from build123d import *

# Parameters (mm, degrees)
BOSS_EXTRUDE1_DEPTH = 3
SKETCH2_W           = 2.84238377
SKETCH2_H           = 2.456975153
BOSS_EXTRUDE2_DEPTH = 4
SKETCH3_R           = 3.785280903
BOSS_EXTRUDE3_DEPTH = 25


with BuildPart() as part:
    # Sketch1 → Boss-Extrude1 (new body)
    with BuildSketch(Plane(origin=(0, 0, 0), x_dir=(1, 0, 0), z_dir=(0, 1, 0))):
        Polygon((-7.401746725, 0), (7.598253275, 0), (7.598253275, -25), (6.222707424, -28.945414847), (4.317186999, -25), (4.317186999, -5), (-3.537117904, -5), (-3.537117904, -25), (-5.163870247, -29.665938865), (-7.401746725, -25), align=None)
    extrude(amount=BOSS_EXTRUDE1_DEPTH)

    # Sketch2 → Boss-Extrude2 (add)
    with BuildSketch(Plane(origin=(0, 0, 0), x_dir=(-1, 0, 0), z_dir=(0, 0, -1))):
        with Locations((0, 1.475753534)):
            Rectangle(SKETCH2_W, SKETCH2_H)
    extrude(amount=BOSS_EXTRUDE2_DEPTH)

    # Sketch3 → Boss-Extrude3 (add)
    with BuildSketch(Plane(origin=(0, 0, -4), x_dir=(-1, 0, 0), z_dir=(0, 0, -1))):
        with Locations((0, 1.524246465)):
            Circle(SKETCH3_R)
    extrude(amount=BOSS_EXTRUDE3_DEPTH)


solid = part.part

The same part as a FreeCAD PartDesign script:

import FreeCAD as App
import Part
import Sketcher

V = App.Vector


def add_polygon(sketch, points):
    """Adds a closed chain of lines whose ends are joined by coincident constraints."""
    first, n = sketch.GeometryCount, len(points)
    for a, b in zip(points, points[1:] + points[:1]):
        sketch.addGeometry(Part.LineSegment(App.Vector(*a, 0), App.Vector(*b, 0)), False)
    for i in range(n):
        sketch.addConstraint(Sketcher.Constraint("Coincident", first + i, 2, first + (i + 1) % n, 1))

doc = App.newDocument("Part")
params = doc.addObject("Spreadsheet::Sheet", "Params")
for row, (alias, value) in enumerate([
    ("sketch1_width", "15 mm"),
    ("sketch1_height", "25 mm"),
    ("sketch1_height2", "20 mm"),
    ("pad1_length", "3 mm"),
    ("pad2_length", "4 mm"),
    ("pad3_length", "25 mm"),
], start=1):
    params.set(f"A{row}", alias)
    params.set(f"B{row}", "=" + value)
    params.setAlias(f"B{row}", alias)

body = doc.addObject("PartDesign::Body", "Body")

sketch1 = body.newObject("Sketcher::SketchObject", "Sketch")
sketch1.AttachmentSupport = (doc.getObject("XZ_Plane"), [""])
sketch1.MapMode = "FlatFace"
add_polygon(sketch1, [(7.6, 0), (-7.4, 0), (-7.4, 25), (-5.2, 29.7), (-3.5, 25), (-3.5, 5), (4.3, 5), (4.3, 25), (6.2, 28.9), (7.6, 25)])
sketch1.addConstraint([
    Sketcher.Constraint("Horizontal", 0),
    Sketcher.Constraint("Vertical", 1),
    Sketcher.Constraint("Vertical", 4),
    Sketcher.Constraint("Horizontal", 5),
    Sketcher.Constraint("Vertical", 6),
    Sketcher.Constraint("Vertical", 9),
    Sketcher.Constraint("PointOnObject", 0, 2, -1),
    Sketcher.Constraint("Parallel", 3, 8),
    Sketcher.Constraint("Horizontal", 1, 2, 3, 2),
    Sketcher.Constraint("Horizontal", 3, 2, 6, 2),
    Sketcher.Constraint("Horizontal", 6, 2, 8, 2),
    Sketcher.Constraint("DistanceX", 0, 2, 0, 1, 15.0),
    Sketcher.Constraint("DistanceY", 1, 1, 1, 2, 25.0),
    Sketcher.Constraint("DistanceY", 4, 2, 4, 1, 20.0),
    Sketcher.Constraint("Distance", 2, 5.17485),
    Sketcher.Constraint("DistanceX", 5, 1, 5, 2, 7.854305),
    Sketcher.Constraint("DistanceX", 2, 2, -1, 1, 5.16387),
    Sketcher.Constraint("DistanceY", -1, 1, 2, 2, 29.665939),
    Sketcher.Constraint("DistanceX", 1, 2, 3, 2, 3.864629),
    Sketcher.Constraint("DistanceX", 6, 2, 7, 2, 1.90552),
])
sketch1.setExpression("Constraints[21]", "Params.sketch1_width")
sketch1.setExpression("Constraints[22]", "Params.sketch1_height")
sketch1.setExpression("Constraints[23]", "Params.sketch1_height2")
pad1 = body.newObject("PartDesign::Pad", "Pad")
pad1.Profile = sketch1
pad1.setExpression("Length", "Params.pad1_length")
pad1.Reversed = True

sketch2 = body.newObject("Sketcher::SketchObject", "Sketch001")
sketch2.AttachmentSupport = (doc.getObject("XY_Plane"), [""])
sketch2.MapMode = "FlatFace"
add_polygon(sketch2, [(1.4, 2.7), (1.4, 0.2), (-1.4, 0.2), (-1.4, 2.7)])
sketch2.addConstraint([
    Sketcher.Constraint("Vertical", 0),
    Sketcher.Constraint("Horizontal", 1),
    Sketcher.Constraint("Vertical", 2),
    Sketcher.Constraint("Horizontal", 3),
    Sketcher.Constraint("DistanceX", 1, 2, 1, 1, 2.842384),
    Sketcher.Constraint("DistanceY", 0, 2, 0, 1, 2.456975),
    Sketcher.Constraint("DistanceX", -1, 1, 0, 2, 1.421192),
    Sketcher.Constraint("DistanceY", -1, 1, 2, 2, 2.704241),
])
pad2 = body.newObject("PartDesign::Pad", "Pad001")
pad2.Profile = sketch2
pad2.setExpression("Length", "Params.pad2_length")
pad2.Reversed = True

sketch3 = body.newObject("Sketcher::SketchObject", "Sketch002")
sketch3.AttachmentSupport = (doc.getObject("XY_Plane"), [""])
sketch3.MapMode = "FlatFace"
sketch3.AttachmentOffset = App.Placement(V(0, 0, -4), App.Rotation())
sketch3.addGeometry(Part.Circle(V(0, 1.5, 0), V(0, 0, 1), 3.8), False)
sketch3.addConstraint([
    Sketcher.Constraint("PointOnObject", 0, 3, -2),
    Sketcher.Constraint("Diameter", 0, 7.570562),
    Sketcher.Constraint("DistanceY", -1, 1, 0, 3, 1.524246),
])
pad3 = body.newObject("PartDesign::Pad", "Pad002")
pad3.Profile = sketch3
pad3.setExpression("Length", "Params.pad3_length")
pad3.Reversed = True

doc.recompute()
